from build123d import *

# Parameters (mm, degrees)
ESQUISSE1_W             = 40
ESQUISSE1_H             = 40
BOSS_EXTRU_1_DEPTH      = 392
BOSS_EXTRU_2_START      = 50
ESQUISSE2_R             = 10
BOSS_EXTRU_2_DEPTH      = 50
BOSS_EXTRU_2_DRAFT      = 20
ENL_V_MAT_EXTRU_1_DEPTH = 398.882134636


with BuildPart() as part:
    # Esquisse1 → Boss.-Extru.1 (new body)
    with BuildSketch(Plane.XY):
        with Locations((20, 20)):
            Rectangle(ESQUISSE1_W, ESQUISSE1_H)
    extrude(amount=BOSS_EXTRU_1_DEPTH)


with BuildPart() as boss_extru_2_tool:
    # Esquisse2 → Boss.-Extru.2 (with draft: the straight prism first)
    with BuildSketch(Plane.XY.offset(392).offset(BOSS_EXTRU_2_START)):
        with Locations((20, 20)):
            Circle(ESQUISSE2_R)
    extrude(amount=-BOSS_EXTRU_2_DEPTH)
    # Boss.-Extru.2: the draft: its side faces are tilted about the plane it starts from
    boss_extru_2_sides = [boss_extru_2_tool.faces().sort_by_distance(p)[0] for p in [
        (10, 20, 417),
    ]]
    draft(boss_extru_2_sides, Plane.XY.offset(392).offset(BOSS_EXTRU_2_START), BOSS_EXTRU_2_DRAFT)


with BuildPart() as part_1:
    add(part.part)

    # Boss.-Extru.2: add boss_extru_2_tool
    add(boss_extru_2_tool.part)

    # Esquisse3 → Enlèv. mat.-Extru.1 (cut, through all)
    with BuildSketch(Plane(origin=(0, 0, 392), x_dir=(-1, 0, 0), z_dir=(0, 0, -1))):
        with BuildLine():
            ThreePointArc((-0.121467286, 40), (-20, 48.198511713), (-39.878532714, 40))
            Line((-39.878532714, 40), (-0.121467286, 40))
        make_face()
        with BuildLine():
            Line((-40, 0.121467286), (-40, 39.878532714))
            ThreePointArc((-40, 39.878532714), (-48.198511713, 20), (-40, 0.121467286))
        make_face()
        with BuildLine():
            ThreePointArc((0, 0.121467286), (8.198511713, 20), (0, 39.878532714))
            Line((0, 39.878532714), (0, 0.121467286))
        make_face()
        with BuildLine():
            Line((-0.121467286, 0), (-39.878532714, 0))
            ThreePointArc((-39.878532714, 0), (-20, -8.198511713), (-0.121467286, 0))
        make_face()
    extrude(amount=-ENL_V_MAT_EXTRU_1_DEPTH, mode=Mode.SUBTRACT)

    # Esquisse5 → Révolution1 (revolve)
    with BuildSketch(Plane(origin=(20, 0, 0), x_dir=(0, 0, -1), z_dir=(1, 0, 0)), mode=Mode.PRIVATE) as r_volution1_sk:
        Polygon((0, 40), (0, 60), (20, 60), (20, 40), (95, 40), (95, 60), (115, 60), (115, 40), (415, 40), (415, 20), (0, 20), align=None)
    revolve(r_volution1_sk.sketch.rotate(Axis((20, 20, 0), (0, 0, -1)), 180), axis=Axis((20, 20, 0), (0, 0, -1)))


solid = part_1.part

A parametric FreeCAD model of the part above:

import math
import FreeCAD as App
import Part
import Sketcher

V = App.Vector
Q = App.Units.Quantity


def faces_at(feature, points):
    """Names of the faces that lie closest to the given points."""
    faces = feature.Shape.Faces
    near = lambda p: min(range(len(faces)), key=lambda i: faces[i].distToShape(Part.Vertex(*p))[0])
    return sorted({f"Face{near(p) + 1}" for p in points})

doc = App.newDocument("Part")
body = doc.addObject("PartDesign::Body", "Body")

sketch1 = body.newObject("Sketcher::SketchObject", "Sketch")
sketch1.AttachmentSupport = (doc.getObject("XY_Plane"), [""])
sketch1.MapMode = "FlatFace"
sketch1.addGeometry(Part.LineSegment(V(0, 40, 0), V(0, 0, 0)), False)
sketch1.addGeometry(Part.LineSegment(V(0, 0, 0), V(40, 0, 0)), False)
sketch1.addGeometry(Part.LineSegment(V(40, 0, 0), V(40, 40, 0)), False)
sketch1.addGeometry(Part.LineSegment(V(40, 40, 0), V(0, 40, 0)), False)
sketch1.addConstraint(Sketcher.Constraint("Coincident", 0, 2, 1, 1))
sketch1.addConstraint(Sketcher.Constraint("Coincident", 1, 2, 2, 1))
sketch1.addConstraint(Sketcher.Constraint("Coincident", 2, 2, 3, 1))
sketch1.addConstraint(Sketcher.Constraint("Coincident", 3, 2, 0, 1))
sketch1.addConstraint(Sketcher.Constraint("Vertical", 0))
sketch1.addConstraint(Sketcher.Constraint("Horizontal", 1))
sketch1.addConstraint(Sketcher.Constraint("Vertical", 2))
sketch1.addConstraint(Sketcher.Constraint("Horizontal", 3))
sketch1.addConstraint(Sketcher.Constraint("Coincident", 0, 2, -1, 1))
sketch1.addConstraint(Sketcher.Constraint("Equal", 3, 0))
sketch1.addConstraint(Sketcher.Constraint("DistanceX", 1, 1, 1, 2, Q("40 mm")))
pad1 = body.newObject("PartDesign::Pad", "Pad")
pad1.Profile = sketch1
pad1.Length = 392
body2 = doc.addObject("PartDesign::Body", "Body001")

sketch2 = body2.newObject("Sketcher::SketchObject", "Sketch001")
sketch2.AttachmentSupport = (doc.getObject("XY_Plane001"), [""])
sketch2.MapMode = "FlatFace"
sketch2.AttachmentOffset = App.Placement(V(0, 0, 442), App.Rotation())
sketch2.addGeometry(Part.Circle(V(20, 20, 0), V(0, 0, 1), 10), False)
sketch2.addConstraint(Sketcher.Constraint("Diameter", 0, Q("20 mm")))
sketch2.addConstraint(Sketcher.Constraint("DistanceX", -1, 1, 0, 3, Q("20 mm")))
sketch2.addConstraint(Sketcher.Constraint("DistanceY", -1, 1, 0, 3, Q("20 mm")))
pad2 = body2.newObject("PartDesign::Pad", "Pad001")
pad2.Profile = sketch2
pad2.Length = 50
pad2.Reversed = True
doc.recompute()

datumplane = body2.newObject("PartDesign::Plane", "DatumPlane")
datumplane.AttachmentSupport = (doc.getObject("XY_Plane001"), [""])
datumplane.MapMode = "FlatFace"
datumplane.AttachmentOffset = App.Placement(V(0, 0, 442), App.Rotation())
draft = body2.newObject("PartDesign::Draft", "Draft")
draft.Base = (pad2, faces_at(pad2, [(10, 20, 417)]))
draft.NeutralPlane = (datumplane, [""])
draft.Angle = 20
draft.Reversed = False
doc.recompute()

boolean = body.newObject("PartDesign::Boolean", "Boolean")
boolean.Type = "Fuse"
boolean.addObjects([body2])

sketch3 = body.newObject("Sketcher::SketchObject", "Sketch002")
sketch3.AttachmentSupport = (doc.getObject("XY_Plane"), [""])
sketch3.MapMode = "FlatFace"
sketch3.AttachmentOffset = App.Placement(V(0, 0, 392), App.Rotation())
sketch3.addGeometry(Part.ArcOfCircle(Part.Circle(V(20, 20, 0), V(0, 0, 1), 28), math.radians(45), math.radians(135)), False)
sketch3.addGeometry(Part.LineSegment(V(40, 40, 0), V(0, 40, 0)), False)
sketch3.addGeometry(Part.LineSegment(V(40, 0, 0), V(40, 40, 0)), False)
sketch3.addGeometry(Part.ArcOfCircle(Part.Circle(V(20, 20, 0), V(0, 0, 1), 28), math.radians(-45), math.radians(45)), False)
sketch3.addGeometry(Part.ArcOfCircle(Part.Circle(V(20, 20, 0), V(0, 0, 1), 28), math.radians(135), math.radians(225)), False)
sketch3.addGeometry(Part.LineSegment(V(0, 40, 0), V(0, 0, 0)), False)
sketch3.addGeometry(Part.LineSegment(V(0, 0, 0), V(40, 0, 0)), False)
sketch3.addGeometry(Part.ArcOfCircle(Part.Circle(V(20, 20, 0), V(0, 0, 1), 28), math.radians(-135), math.radians(-45)), False)
sketch3.addConstraint(Sketcher.Constraint("Coincident", 0, 1, 1, 1))
sketch3.addConstraint(Sketcher.Constraint("Coincident", 1, 2, 0, 2))
sketch3.addConstraint(Sketcher.Constraint("Coincident", 2, 1, 3, 1))
sketch3.addConstraint(Sketcher.Constraint("Coincident", 3, 2, 2, 2))
sketch3.addConstraint(Sketcher.Constraint("Coincident", 4, 1, 5, 1))
sketch3.addConstraint(Sketcher.Constraint("Coincident", 5, 2, 4, 2))
sketch3.addConstraint(Sketcher.Constraint("Coincident", 6, 1, 7, 1))
sketch3.addConstraint(Sketcher.Constraint("Coincident", 7, 2, 6, 2))
sketch3.addConstraint(Sketcher.Constraint("Horizontal", 1))
sketch3.addConstraint(Sketcher.Constraint("Vertical", 2))
sketch3.addConstraint(Sketcher.Constraint("Vertical", 5))
sketch3.addConstraint(Sketcher.Constraint("Horizontal", 6))
sketch3.addConstraint(Sketcher.Constraint("Coincident", 3, 3, 0, 3))
sketch3.addConstraint(Sketcher.Constraint("Coincident", 4, 3, 0, 3))
sketch3.addConstraint(Sketcher.Constraint("Coincident", 7, 3, 0, 3))
sketch3.addConstraint(Sketcher.Constraint("Equal", 0, 3))
sketch3.addConstraint(Sketcher.Constraint("Equal", 3, 4))
sketch3.addConstraint(Sketcher.Constraint("Equal", 4, 7))
sketch3.addConstraint(Sketcher.Constraint("PointOnObject", 4, 1, -2))
sketch3.addConstraint(Sketcher.Constraint("PointOnObject", 6, 1, -1))
sketch3.addConstraint(Sketcher.Constraint("Horizontal", 3, 2, 4, 1))
sketch3.addConstraint(Sketcher.Constraint("Vertical", 1, 2, 6, 1))
sketch3.addConstraint(Sketcher.Constraint("Equal", 6, 2))
sketch3.addConstraint(Sketcher.Constraint("DistanceX", -1, 1, 0, 3, Q("20 mm")))
sketch3.addConstraint(Sketcher.Constraint("Radius", 0, Q("28.198512 mm")))
pocket1 = body.newObject("PartDesign::Pocket", "Pocket")
pocket1.Profile = sketch3
pocket1.Type = "ThroughAll"
pocket1.Reversed = True

sketch4 = body.newObject("Sketcher::SketchObject", "Sketch003")
sketch4.AttachmentSupport = (doc.getObject("YZ_Plane"), [""])
sketch4.MapMode = "FlatFace"
sketch4.AttachmentOffset = App.Placement(V(0, 0, 20), App.Rotation())
sketch4.addGeometry(Part.LineSegment(V(60, 0, 0), V(20, 0, 0)), False)
sketch4.addGeometry(Part.LineSegment(V(20, 0, 0), V(20, -415, 0)), False)
sketch4.addGeometry(Part.LineSegment(V(20, -415, 0), V(40, -415, 0)), False)
sketch4.addGeometry(Part.LineSegment(V(40, -415, 0), V(40, -115, 0)), False)
sketch4.addGeometry(Part.LineSegment(V(40, -115, 0), V(60, -115, 0)), False)
sketch4.addGeometry(Part.LineSegment(V(60, -115, 0), V(60, -95, 0)), False)
sketch4.addGeometry(Part.LineSegment(V(60, -95, 0), V(40, -95, 0)), False)
sketch4.addGeometry(Part.LineSegment(V(40, -95, 0), V(40, -20, 0)), False)
sketch4.addGeometry(Part.LineSegment(V(40, -20, 0), V(60, -20, 0)), False)
sketch4.addGeometry(Part.LineSegment(V(60, -20, 0), V(60, 0, 0)), False)
sketch4.addGeometry(Part.LineSegment(V(20, 0, 0), V(20, -415, 0)), True)
sketch4.addConstraint(Sketcher.Constraint("Coincident", 0, 2, 1, 1))
sketch4.addConstraint(Sketcher.Constraint("Coincident", 1, 2, 2, 1))
sketch4.addConstraint(Sketcher.Constraint("Coincident", 2, 2, 3, 1))
sketch4.addConstraint(Sketcher.Constraint("Coincident", 3, 2, 4, 1))
sketch4.addConstraint(Sketcher.Constraint("Coincident", 4, 2, 5, 1))
sketch4.addConstraint(Sketcher.Constraint("Coincident", 5, 2, 6, 1))
sketch4.addConstraint(Sketcher.Constraint("Coincident", 6, 2, 7, 1))
sketch4.addConstraint(Sketcher.Constraint("Coincident", 7, 2, 8, 1))
sketch4.addConstraint(Sketcher.Constraint("Coincident", 8, 2, 9, 1))
sketch4.addConstraint(Sketcher.Constraint("Coincident", 9, 2, 0, 1))
sketch4.addConstraint(Sketcher.Constraint("Horizontal", 0))
sketch4.addConstraint(Sketcher.Constraint("Vertical", 1))
sketch4.addConstraint(Sketcher.Constraint("Horizontal", 2))
sketch4.addConstraint(Sketcher.Constraint("Vertical", 3))
sketch4.addConstraint(Sketcher.Constraint("Horizontal", 4))
sketch4.addConstraint(Sketcher.Constraint("Vertical", 5))
sketch4.addConstraint(Sketcher.Constraint("Horizontal", 6))
sketch4.addConstraint(Sketcher.Constraint("Vertical", 7))
sketch4.addConstraint(Sketcher.Constraint("Horizontal", 8))
sketch4.addConstraint(Sketcher.Constraint("Vertical", 9))
sketch4.addConstraint(Sketcher.Constraint("Vertical", 10))
sketch4.addConstraint(Sketcher.Constraint("Coincident", 10, 1, 0, 2))
sketch4.addConstraint(Sketcher.Constraint("PointOnObject", 0, 2, -1))
sketch4.addConstraint(Sketcher.Constraint("Horizontal", 2, 2, 10, 2))
sketch4.addConstraint(Sketcher.Constraint("Vertical", 3, 2, 6, 2))
sketch4.addConstraint(Sketcher.Constraint("Vertical", 5, 2, 8, 2))
sketch4.addConstraint(Sketcher.Constraint("Equal", 2, 4))
sketch4.addConstraint(Sketcher.Constraint("Equal", 8, 5))
sketch4.addConstraint(Sketcher.Constraint("Equal", 5, 9))
sketch4.addConstraint(Sketcher.Constraint("DistanceX", 0, 2, 0, 1, Q("40 mm")))
sketch4.addConstraint(Sketcher.Constraint("DistanceY", 1, 2, 1, 1, Q("415 mm")))
sketch4.addConstraint(Sketcher.Constraint("DistanceY", 3, 1, 3, 2, Q("300 mm")))
sketch4.addConstraint(Sketcher.Constraint("DistanceX", -1, 1, 0, 2, Q("20 mm")))
revolution = body.newObject("PartDesign::Revolution", "Revolution")
revolution.Profile = sketch4
revolution.ReferenceAxis = (sketch4, ["Axis0"])
revolution.Angle = 360

doc.recompute()
